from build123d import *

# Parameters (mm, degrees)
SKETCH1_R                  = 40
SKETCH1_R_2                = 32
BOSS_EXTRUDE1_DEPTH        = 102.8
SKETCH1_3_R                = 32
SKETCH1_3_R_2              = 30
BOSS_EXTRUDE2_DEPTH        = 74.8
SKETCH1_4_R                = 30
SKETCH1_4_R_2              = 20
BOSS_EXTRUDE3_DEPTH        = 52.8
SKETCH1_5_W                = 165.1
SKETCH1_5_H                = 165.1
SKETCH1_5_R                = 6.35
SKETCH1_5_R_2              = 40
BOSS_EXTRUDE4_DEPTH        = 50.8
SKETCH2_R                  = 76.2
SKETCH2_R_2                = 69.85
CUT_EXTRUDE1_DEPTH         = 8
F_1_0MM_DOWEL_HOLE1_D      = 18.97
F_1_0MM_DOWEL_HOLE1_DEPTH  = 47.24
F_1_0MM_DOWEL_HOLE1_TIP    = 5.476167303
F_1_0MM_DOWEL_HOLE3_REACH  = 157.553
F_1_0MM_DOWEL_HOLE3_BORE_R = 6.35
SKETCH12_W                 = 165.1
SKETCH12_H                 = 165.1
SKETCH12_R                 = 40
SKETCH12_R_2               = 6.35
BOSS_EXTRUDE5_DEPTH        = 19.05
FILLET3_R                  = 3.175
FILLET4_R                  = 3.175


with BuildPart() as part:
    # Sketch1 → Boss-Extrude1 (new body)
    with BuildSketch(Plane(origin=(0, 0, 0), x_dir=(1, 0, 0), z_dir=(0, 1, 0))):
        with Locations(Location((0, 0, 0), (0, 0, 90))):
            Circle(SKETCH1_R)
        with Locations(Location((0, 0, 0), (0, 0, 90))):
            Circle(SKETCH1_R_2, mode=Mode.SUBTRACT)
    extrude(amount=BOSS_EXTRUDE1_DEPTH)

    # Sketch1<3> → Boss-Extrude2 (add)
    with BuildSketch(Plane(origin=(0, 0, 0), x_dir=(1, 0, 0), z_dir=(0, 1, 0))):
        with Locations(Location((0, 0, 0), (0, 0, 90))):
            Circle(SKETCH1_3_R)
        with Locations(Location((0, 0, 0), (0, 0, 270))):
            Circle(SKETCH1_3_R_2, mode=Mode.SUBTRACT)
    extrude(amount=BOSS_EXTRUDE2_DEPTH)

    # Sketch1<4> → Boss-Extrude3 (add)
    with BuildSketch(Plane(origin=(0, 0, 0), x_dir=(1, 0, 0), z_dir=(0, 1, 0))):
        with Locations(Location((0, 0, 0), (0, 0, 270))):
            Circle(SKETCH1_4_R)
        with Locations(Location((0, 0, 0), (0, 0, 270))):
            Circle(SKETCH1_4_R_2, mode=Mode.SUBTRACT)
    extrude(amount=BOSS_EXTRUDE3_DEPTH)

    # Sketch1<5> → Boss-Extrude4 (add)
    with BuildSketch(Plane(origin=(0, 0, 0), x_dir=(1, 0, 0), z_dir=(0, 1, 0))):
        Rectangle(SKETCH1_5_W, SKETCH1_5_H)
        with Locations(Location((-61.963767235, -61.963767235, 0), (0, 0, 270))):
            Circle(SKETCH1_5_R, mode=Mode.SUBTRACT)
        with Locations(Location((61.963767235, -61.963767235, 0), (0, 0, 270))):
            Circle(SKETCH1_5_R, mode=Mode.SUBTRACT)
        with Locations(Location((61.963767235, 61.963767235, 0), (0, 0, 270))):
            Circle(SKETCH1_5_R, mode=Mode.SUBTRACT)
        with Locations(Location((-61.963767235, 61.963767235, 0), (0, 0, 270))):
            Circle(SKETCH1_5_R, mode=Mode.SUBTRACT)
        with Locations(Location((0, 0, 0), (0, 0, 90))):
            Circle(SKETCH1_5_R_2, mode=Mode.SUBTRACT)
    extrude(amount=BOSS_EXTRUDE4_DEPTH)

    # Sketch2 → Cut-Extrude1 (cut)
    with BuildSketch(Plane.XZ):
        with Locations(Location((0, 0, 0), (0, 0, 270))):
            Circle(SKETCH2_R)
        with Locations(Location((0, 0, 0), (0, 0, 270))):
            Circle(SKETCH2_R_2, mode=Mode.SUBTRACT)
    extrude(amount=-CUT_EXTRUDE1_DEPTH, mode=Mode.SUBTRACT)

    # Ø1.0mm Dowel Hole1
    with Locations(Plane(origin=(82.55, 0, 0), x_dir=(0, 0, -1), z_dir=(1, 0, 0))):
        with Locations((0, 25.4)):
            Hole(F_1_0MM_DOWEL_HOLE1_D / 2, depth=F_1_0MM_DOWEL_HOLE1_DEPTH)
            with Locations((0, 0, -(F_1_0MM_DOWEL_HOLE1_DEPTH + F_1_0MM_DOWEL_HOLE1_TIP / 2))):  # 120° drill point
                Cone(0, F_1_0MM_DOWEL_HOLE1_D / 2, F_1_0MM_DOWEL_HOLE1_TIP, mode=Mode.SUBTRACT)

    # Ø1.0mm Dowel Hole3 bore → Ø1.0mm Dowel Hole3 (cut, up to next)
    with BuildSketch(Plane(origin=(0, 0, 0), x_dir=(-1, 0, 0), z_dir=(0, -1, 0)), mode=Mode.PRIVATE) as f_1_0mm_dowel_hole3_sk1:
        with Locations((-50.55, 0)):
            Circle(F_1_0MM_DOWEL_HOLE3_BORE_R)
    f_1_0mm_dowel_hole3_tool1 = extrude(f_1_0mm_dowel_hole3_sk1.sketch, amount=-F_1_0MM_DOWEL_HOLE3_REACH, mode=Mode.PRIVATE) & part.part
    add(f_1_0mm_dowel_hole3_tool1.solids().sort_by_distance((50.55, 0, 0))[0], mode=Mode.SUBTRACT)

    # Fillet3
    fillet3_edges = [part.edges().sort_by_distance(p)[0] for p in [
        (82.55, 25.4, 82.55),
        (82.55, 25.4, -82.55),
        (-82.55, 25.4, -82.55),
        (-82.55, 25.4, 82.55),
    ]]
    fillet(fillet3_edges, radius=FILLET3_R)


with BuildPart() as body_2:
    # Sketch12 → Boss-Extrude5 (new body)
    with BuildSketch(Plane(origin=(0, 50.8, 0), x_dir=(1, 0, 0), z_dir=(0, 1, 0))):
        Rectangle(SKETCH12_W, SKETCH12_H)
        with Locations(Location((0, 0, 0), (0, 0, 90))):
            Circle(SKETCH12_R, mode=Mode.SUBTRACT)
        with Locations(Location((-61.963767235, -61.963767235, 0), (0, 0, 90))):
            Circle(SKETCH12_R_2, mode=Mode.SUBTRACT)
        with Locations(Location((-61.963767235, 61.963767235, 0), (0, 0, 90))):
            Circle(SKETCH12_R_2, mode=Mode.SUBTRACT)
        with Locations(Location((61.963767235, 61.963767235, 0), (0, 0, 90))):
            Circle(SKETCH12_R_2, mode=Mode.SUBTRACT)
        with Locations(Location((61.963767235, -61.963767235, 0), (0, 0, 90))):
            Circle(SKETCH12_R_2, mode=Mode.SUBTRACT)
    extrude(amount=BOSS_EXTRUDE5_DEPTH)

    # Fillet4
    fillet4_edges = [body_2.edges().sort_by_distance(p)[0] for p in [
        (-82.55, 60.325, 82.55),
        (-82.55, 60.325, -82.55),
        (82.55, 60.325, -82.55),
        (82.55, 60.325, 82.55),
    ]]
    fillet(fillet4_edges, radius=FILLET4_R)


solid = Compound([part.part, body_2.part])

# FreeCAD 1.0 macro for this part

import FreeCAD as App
import Part
import Sketcher
from FreeCAD import Vector


def edges_at(feature, points):
    """Names of the edges that pass closest to the given points."""
    edges = feature.Shape.Edges
    near = lambda p: min(range(len(edges)), key=lambda i: edges[i].distToShape(Part.Vertex(*p))[0])
    return sorted({f"Edge{near(p) + 1}" for p in points})


def add_polygon(sketch, points):
    """Adds a closed chain of lines whose ends are joined by coincident constraints."""
    first, n = sketch.GeometryCount, len(points)
    for a, b in zip(points, points[1:] + points[:1]):
        sketch.addGeometry(Part.LineSegment(App.Vector(*a, 0), App.Vector(*b, 0)), False)
    for i in range(n):
        sketch.addConstraint(Sketcher.Constraint("Coincident", first + i, 2, first + (i + 1) % n, 1))

doc = App.newDocument("Part")
params = doc.addObject("Spreadsheet::Sheet", "Params")
for row, (alias, value) in enumerate([
    ("sketch1_diameter", "80 mm"),
    ("sketch1_diameter2", "64 mm"),
    ("pad1_length", "102.8 mm"),
    ("sketch2_diameter", "64 mm"),
    ("sketch2_diameter2", "60 mm"),
    ("pad2_length", "74.8 mm"),
    ("sketch3_diameter", "60 mm"),
    ("sketch3_diameter2", "40 mm"),
    ("pad3_length", "52.8 mm"),
    ("sketch4_diameter", "80 mm"),
    ("sketch4_diameter2", "12.7 mm"),
    ("sketch4_width", "165.1 mm"),
    ("pad4_length", "50.8 mm"),
    ("sketch5_diameter", "152.4 mm"),
    ("sketch5_diameter2", "139.7 mm"),
    ("pocket1_length", "8 mm"),
    ("sketch6_diameter", "18.97 mm"),
    ("hole_diameter", "18.97 mm"),
    ("hole_depth", "47.24 mm"),
    ("sketch7_diameter", "12.7 mm"),
    ("fillet_radius", "3.175 mm"),
    ("sketch8_diameter", "80 mm"),
    ("sketch8_diameter2", "12.7 mm"),
    ("sketch8_width", "165.1 mm"),
    ("pad5_length", "19.05 mm"),
    ("fillet2_radius", "3.175 mm"),
], start=1):
    params.set(f"A{row}", alias)
    params.set(f"B{row}", "=" + value)
    params.setAlias(f"B{row}", alias)

body = doc.addObject("PartDesign::Body", "Body")

# Sketch on XZ plane
sketch1 = body.newObject("Sketcher::SketchObject", "Sketch")
sketch1.AttachmentSupport = (doc.getObject("XZ_Plane"), [""])
sketch1.MapMode = "FlatFace"
sketch1.addGeometry([
    Part.Circle(Vector(0, 0, 0), Vector(0, 0, 1), 40),
    Part.Circle(Vector(0, 0, 0), Vector(0, 0, 1), 32),
], False)
sketch1.addConstraint([
    Sketcher.Constraint("Coincident", 0, 3, -1, 1),
    Sketcher.Constraint("Coincident", 1, 3, -1, 1),
    Sketcher.Constraint("Diameter", 0, 80.0),
    Sketcher.Constraint("Diameter", 1, 64.0),
])
sketch1.setExpression("Constraints[2]", "Params.sketch1_diameter")
sketch1.setExpression("Constraints[3]", "Params.sketch1_diameter2")
pad1 = body.newObject("PartDesign::Pad", "Pad")
pad1.Profile = sketch1
pad1.setExpression("Length", "Params.pad1_length")
pad1.Reversed = True

# Sketch on XZ plane
sketch2 = body.newObject("Sketcher::SketchObject", "Sketch001")
sketch2.AttachmentSupport = (doc.getObject("XZ_Plane"), [""])
sketch2.MapMode = "FlatFace"
sketch2.addGeometry([
    Part.Circle(Vector(0, 0, 0), Vector(0, 0, 1), 32),
    Part.Circle(Vector(0, 0, 0), Vector(0, 0, 1), 30),
], False)
sketch2.addConstraint([
    Sketcher.Constraint("Coincident", 0, 3, -1, 1),
    Sketcher.Constraint("Coincident", 1, 3, -1, 1),
    Sketcher.Constraint("Diameter", 0, 64.0),
    Sketcher.Constraint("Diameter", 1, 60.0),
])
sketch2.setExpression("Constraints[2]", "Params.sketch2_diameter")
sketch2.setExpression("Constraints[3]", "Params.sketch2_diameter2")
pad2 = body.newObject("PartDesign::Pad", "Pad001")
pad2.Profile = sketch2
pad2.setExpression("Length", "Params.pad2_length")
pad2.Reversed = True

# Sketch on XZ plane
sketch3 = body.newObject("Sketcher::SketchObject", "Sketch002")
sketch3.AttachmentSupport = (doc.getObject("XZ_Plane"), [""])
sketch3.MapMode = "FlatFace"
sketch3.addGeometry([
    Part.Circle(Vector(0, 0, 0), Vector(0, 0, 1), 30),
    Part.Circle(Vector(0, 0, 0), Vector(0, 0, 1), 20),
], False)
sketch3.addConstraint([
    Sketcher.Constraint("Coincident", 0, 3, -1, 1),
    Sketcher.Constraint("Coincident", 1, 3, -1, 1),
    Sketcher.Constraint("Diameter", 0, 60.0),
    Sketcher.Constraint("Diameter", 1, 40.0),
])
sketch3.setExpression("Constraints[2]", "Params.sketch3_diameter")
sketch3.setExpression("Constraints[3]", "Params.sketch3_diameter2")
pad3 = body.newObject("PartDesign::Pad", "Pad002")
pad3.Profile = sketch3
pad3.setExpression("Length", "Params.pad3_length")
pad3.Reversed = True

# Sketch on XZ plane
sketch4 = body.newObject("Sketcher::SketchObject", "Sketch003")
sketch4.AttachmentSupport = (doc.getObject("XZ_Plane"), [""])
sketch4.MapMode = "FlatFace"
add_polygon(sketch4, [(-83, -83), (-83, 83), (83, 83), (83, -83)])  # lines 0-3
sketch4.addGeometry(Part.Circle(Vector(-62, 62, 0), Vector(0, 0, 1), 6), False)  # 4
sketch4.addGeometry(Part.Circle(Vector(62, 62, 0), Vector(0, 0, 1), 6), False)  # 5
sketch4.addGeometry(Part.Circle(Vector(-62, -62, 0), Vector(0, 0, 1), 6), False)  # 6
sketch4.addGeometry(Part.Circle(Vector(0, 0, 0), Vector(0, 0, 1), 40), False)  # 7
sketch4.addGeometry(Part.Circle(Vector(62, -62, 0), Vector(0, 0, 1), 6), False)  # 8
sketch4.addConstraint([
    Sketcher.Constraint("Vertical", 0),
    Sketcher.Constraint("Horizontal", 1),
    Sketcher.Constraint("Vertical", 2),
    Sketcher.Constraint("Horizontal", 3),
    Sketcher.Constraint("Coincident", 7, 3, -1, 1),
    Sketcher.Constraint("Equal", 4, 5),
    Sketcher.Constraint("Equal", 5, 6),
    Sketcher.Constraint("Equal", 6, 8),
    Sketcher.Constraint("Symmetric", 5, 3, 6, 3, -1, 1),
    Sketcher.Constraint("Symmetric", 4, 3, 8, 3, -1, 1),
    Sketcher.Constraint("Symmetric", 0, 2, 2, 2, -1, 1),
    Sketcher.Constraint("Symmetric", 4, 3, 5, 3, -2),
    Sketcher.Constraint("Equal", 3, 0),
    Sketcher.Constraint("Diameter", 7, 80.0),
    Sketcher.Constraint("Diameter", 4, 12.7),
    Sketcher.Constraint("DistanceX", 1, 1, 1, 2, 165.1),
    Sketcher.Constraint("DistanceX", 4, 3, -1, 1, 61.963767),
    Sketcher.Constraint("DistanceY", -1, 1, 4, 3, 61.963767),
])
sketch4.setExpression("Constraints[17]", "Params.sketch4_diameter")
sketch4.setExpression("Constraints[18]", "Params.sketch4_diameter2")
sketch4.setExpression("Constraints[19]", "Params.sketch4_width")
pad4 = body.newObject("PartDesign::Pad", "Pad003")
pad4.Profile = sketch4
pad4.setExpression("Length", "Params.pad4_length")
pad4.Reversed = True

# Sketch on XZ plane
sketch5 = body.newObject("Sketcher::SketchObject", "Sketch004")
sketch5.AttachmentSupport = (doc.getObject("XZ_Plane"), [""])
sketch5.MapMode = "FlatFace"
sketch5.addGeometry([
    Part.Circle(Vector(0, 0, 0), Vector(0, 0, 1), 76),
    Part.Circle(Vector(0, 0, 0), Vector(0, 0, 1), 70),
], False)
sketch5.addConstraint([
    Sketcher.Constraint("Coincident", 0, 3, -1, 1),
    Sketcher.Constraint("Coincident", 1, 3, -1, 1),
    Sketcher.Constraint("Diameter", 0, 152.4),
    Sketcher.Constraint("Diameter", 1, 139.7),
])
sketch5.setExpression("Constraints[2]", "Params.sketch5_diameter")
sketch5.setExpression("Constraints[3]", "Params.sketch5_diameter2")
pocket1 = body.newObject("PartDesign::Pocket", "Pocket")
pocket1.Profile = sketch5
pocket1.setExpression("Length", "Params.pocket1_length")

# Sketch on YZ plane
sketch6 = body.newObject("Sketcher::SketchObject", "Sketch005")
sketch6.AttachmentSupport = (doc.getObject("YZ_Plane"), [""])
sketch6.MapMode = "FlatFace"
sketch6.AttachmentOffset = App.Placement(Vector(0, 0, 82.55), App.Rotation())
sketch6.addGeometry(Part.Circle(Vector(25, 0, 0), Vector(0, 0, 1), 9), False)
sketch6.addConstraint([
    Sketcher.Constraint("PointOnObject", 0, 3, -1),
    Sketcher.Constraint("Diameter", 0, 18.97),
    Sketcher.Constraint("DistanceX", -1, 1, 0, 3, 25.4),
])
sketch6.setExpression("Constraints[1]", "Params.sketch6_diameter")
doc.recompute()
hole = body.newObject("PartDesign::Hole", "Hole")
hole.Profile = sketch6
hole.ThreadType = "None"
hole.setExpression("Diameter", "Params.hole_diameter")
hole.DepthType = "Dimension"
hole.setExpression("Depth", "Params.hole_depth")
hole.DrillPoint = "Angled"
hole.DrillPointAngle = 120

# Sketch on XZ plane
sketch7 = body.newObject("Sketcher::SketchObject", "Sketch006")
sketch7.AttachmentSupport = (doc.getObject("XZ_Plane"), [""])
sketch7.MapMode = "FlatFace"
sketch7.addGeometry(Part.Circle(Vector(51, 0, 0), Vector(0, 0, 1), 6), False)
sketch7.addConstraint([
    Sketcher.Constraint("PointOnObject", 0, 3, -1),
    Sketcher.Constraint("Diameter", 0, 12.7),
    Sketcher.Constraint("DistanceX", -1, 1, 0, 3, 50.55),
])
sketch7.setExpression("Constraints[1]", "Params.sketch7_diameter")
pocket2 = body.newObject("PartDesign::Pocket", "Pocket001")
pocket2.Profile = sketch7
pocket2.Type = "UpToFirst"
doc.recompute()

fillet = body.newObject("PartDesign::Fillet", "Fillet")
fillet.Base = (pocket2, edges_at(pocket2, [
    (82.55, 25.4, 82.55),
    (82.55, 25.4, -82.55),
    (-82.55, 25.4, -82.55),
    (-82.55, 25.4, 82.55),
]))
fillet.setExpression("Radius", "Params.fillet_radius")
body2 = doc.addObject("PartDesign::Body", "Body001")

# Sketch on XZ plane
sketch8 = body2.newObject("Sketcher::SketchObject", "Sketch007")
sketch8.AttachmentSupport = (doc.getObject("XZ_Plane001"), [""])
sketch8.MapMode = "FlatFace"
sketch8.AttachmentOffset = App.Placement(Vector(0, 0, -50.8), App.Rotation())
add_polygon(sketch8, [(-83, -83), (-83, 83), (83, 83), (83, -83)])  # lines 0-3
sketch8.addGeometry(Part.Circle(Vector(-62, 62, 0), Vector(0, 0, 1), 6), False)  # 4
sketch8.addGeometry(Part.Circle(Vector(62, 62, 0), Vector(0, 0, 1), 6), False)  # 5
sketch8.addGeometry(Part.Circle(Vector(-62, -62, 0), Vector(0, 0, 1), 6), False)  # 6
sketch8.addGeometry(Part.Circle(Vector(0, 0, 0), Vector(0, 0, 1), 40), False)  # 7
sketch8.addGeometry(Part.Circle(Vector(62, -62, 0), Vector(0, 0, 1), 6), False)  # 8
sketch8.addConstraint([
    Sketcher.Constraint("Vertical", 0),
    Sketcher.Constraint("Horizontal", 1),
    Sketcher.Constraint("Vertical", 2),
    Sketcher.Constraint("Horizontal", 3),
    Sketcher.Constraint("Coincident", 7, 3, -1, 1),
    Sketcher.Constraint("Equal", 4, 5),
    Sketcher.Constraint("Equal", 5, 6),
    Sketcher.Constraint("Equal", 6, 8),
    Sketcher.Constraint("Symmetric", 5, 3, 6, 3, -1, 1),
    Sketcher.Constraint("Symmetric", 4, 3, 8, 3, -1, 1),
    Sketcher.Constraint("Symmetric", 0, 2, 2, 2, -1, 1),
    Sketcher.Constraint("Symmetric", 4, 3, 5, 3, -2),
    Sketcher.Constraint("Equal", 3, 0),
    Sketcher.Constraint("Diameter", 7, 80.0),
    Sketcher.Constraint("Diameter", 4, 12.7),
    Sketcher.Constraint("DistanceX", 1, 1, 1, 2, 165.1),
    Sketcher.Constraint("DistanceX", 4, 3, -1, 1, 61.963767),
    Sketcher.Constraint("DistanceY", -1, 1, 4, 3, 61.963767),
])
sketch8.setExpression("Constraints[17]", "Params.sketch8_diameter")
sketch8.setExpression("Constraints[18]", "Params.sketch8_diameter2")
sketch8.setExpression("Constraints[19]", "Params.sketch8_width")
pad5 = body2.newObject("PartDesign::Pad", "Pad004")
pad5.Profile = sketch8
pad5.setExpression("Length", "Params.pad5_length")
pad5.Reversed = True
doc.recompute()

fillet2 = body2.newObject("PartDesign::Fillet", "Fillet001")
fillet2.Base = (pad5, edges_at(pad5, [
    (-82.55, 60.325, 82.55),
    (-82.55, 60.325, -82.55),
    (82.55, 60.325, -82.55),
    (82.55, 60.325, 82.55),
]))
fillet2.setExpression("Radius", "Params.fillet2_radius")

doc.recompute()
